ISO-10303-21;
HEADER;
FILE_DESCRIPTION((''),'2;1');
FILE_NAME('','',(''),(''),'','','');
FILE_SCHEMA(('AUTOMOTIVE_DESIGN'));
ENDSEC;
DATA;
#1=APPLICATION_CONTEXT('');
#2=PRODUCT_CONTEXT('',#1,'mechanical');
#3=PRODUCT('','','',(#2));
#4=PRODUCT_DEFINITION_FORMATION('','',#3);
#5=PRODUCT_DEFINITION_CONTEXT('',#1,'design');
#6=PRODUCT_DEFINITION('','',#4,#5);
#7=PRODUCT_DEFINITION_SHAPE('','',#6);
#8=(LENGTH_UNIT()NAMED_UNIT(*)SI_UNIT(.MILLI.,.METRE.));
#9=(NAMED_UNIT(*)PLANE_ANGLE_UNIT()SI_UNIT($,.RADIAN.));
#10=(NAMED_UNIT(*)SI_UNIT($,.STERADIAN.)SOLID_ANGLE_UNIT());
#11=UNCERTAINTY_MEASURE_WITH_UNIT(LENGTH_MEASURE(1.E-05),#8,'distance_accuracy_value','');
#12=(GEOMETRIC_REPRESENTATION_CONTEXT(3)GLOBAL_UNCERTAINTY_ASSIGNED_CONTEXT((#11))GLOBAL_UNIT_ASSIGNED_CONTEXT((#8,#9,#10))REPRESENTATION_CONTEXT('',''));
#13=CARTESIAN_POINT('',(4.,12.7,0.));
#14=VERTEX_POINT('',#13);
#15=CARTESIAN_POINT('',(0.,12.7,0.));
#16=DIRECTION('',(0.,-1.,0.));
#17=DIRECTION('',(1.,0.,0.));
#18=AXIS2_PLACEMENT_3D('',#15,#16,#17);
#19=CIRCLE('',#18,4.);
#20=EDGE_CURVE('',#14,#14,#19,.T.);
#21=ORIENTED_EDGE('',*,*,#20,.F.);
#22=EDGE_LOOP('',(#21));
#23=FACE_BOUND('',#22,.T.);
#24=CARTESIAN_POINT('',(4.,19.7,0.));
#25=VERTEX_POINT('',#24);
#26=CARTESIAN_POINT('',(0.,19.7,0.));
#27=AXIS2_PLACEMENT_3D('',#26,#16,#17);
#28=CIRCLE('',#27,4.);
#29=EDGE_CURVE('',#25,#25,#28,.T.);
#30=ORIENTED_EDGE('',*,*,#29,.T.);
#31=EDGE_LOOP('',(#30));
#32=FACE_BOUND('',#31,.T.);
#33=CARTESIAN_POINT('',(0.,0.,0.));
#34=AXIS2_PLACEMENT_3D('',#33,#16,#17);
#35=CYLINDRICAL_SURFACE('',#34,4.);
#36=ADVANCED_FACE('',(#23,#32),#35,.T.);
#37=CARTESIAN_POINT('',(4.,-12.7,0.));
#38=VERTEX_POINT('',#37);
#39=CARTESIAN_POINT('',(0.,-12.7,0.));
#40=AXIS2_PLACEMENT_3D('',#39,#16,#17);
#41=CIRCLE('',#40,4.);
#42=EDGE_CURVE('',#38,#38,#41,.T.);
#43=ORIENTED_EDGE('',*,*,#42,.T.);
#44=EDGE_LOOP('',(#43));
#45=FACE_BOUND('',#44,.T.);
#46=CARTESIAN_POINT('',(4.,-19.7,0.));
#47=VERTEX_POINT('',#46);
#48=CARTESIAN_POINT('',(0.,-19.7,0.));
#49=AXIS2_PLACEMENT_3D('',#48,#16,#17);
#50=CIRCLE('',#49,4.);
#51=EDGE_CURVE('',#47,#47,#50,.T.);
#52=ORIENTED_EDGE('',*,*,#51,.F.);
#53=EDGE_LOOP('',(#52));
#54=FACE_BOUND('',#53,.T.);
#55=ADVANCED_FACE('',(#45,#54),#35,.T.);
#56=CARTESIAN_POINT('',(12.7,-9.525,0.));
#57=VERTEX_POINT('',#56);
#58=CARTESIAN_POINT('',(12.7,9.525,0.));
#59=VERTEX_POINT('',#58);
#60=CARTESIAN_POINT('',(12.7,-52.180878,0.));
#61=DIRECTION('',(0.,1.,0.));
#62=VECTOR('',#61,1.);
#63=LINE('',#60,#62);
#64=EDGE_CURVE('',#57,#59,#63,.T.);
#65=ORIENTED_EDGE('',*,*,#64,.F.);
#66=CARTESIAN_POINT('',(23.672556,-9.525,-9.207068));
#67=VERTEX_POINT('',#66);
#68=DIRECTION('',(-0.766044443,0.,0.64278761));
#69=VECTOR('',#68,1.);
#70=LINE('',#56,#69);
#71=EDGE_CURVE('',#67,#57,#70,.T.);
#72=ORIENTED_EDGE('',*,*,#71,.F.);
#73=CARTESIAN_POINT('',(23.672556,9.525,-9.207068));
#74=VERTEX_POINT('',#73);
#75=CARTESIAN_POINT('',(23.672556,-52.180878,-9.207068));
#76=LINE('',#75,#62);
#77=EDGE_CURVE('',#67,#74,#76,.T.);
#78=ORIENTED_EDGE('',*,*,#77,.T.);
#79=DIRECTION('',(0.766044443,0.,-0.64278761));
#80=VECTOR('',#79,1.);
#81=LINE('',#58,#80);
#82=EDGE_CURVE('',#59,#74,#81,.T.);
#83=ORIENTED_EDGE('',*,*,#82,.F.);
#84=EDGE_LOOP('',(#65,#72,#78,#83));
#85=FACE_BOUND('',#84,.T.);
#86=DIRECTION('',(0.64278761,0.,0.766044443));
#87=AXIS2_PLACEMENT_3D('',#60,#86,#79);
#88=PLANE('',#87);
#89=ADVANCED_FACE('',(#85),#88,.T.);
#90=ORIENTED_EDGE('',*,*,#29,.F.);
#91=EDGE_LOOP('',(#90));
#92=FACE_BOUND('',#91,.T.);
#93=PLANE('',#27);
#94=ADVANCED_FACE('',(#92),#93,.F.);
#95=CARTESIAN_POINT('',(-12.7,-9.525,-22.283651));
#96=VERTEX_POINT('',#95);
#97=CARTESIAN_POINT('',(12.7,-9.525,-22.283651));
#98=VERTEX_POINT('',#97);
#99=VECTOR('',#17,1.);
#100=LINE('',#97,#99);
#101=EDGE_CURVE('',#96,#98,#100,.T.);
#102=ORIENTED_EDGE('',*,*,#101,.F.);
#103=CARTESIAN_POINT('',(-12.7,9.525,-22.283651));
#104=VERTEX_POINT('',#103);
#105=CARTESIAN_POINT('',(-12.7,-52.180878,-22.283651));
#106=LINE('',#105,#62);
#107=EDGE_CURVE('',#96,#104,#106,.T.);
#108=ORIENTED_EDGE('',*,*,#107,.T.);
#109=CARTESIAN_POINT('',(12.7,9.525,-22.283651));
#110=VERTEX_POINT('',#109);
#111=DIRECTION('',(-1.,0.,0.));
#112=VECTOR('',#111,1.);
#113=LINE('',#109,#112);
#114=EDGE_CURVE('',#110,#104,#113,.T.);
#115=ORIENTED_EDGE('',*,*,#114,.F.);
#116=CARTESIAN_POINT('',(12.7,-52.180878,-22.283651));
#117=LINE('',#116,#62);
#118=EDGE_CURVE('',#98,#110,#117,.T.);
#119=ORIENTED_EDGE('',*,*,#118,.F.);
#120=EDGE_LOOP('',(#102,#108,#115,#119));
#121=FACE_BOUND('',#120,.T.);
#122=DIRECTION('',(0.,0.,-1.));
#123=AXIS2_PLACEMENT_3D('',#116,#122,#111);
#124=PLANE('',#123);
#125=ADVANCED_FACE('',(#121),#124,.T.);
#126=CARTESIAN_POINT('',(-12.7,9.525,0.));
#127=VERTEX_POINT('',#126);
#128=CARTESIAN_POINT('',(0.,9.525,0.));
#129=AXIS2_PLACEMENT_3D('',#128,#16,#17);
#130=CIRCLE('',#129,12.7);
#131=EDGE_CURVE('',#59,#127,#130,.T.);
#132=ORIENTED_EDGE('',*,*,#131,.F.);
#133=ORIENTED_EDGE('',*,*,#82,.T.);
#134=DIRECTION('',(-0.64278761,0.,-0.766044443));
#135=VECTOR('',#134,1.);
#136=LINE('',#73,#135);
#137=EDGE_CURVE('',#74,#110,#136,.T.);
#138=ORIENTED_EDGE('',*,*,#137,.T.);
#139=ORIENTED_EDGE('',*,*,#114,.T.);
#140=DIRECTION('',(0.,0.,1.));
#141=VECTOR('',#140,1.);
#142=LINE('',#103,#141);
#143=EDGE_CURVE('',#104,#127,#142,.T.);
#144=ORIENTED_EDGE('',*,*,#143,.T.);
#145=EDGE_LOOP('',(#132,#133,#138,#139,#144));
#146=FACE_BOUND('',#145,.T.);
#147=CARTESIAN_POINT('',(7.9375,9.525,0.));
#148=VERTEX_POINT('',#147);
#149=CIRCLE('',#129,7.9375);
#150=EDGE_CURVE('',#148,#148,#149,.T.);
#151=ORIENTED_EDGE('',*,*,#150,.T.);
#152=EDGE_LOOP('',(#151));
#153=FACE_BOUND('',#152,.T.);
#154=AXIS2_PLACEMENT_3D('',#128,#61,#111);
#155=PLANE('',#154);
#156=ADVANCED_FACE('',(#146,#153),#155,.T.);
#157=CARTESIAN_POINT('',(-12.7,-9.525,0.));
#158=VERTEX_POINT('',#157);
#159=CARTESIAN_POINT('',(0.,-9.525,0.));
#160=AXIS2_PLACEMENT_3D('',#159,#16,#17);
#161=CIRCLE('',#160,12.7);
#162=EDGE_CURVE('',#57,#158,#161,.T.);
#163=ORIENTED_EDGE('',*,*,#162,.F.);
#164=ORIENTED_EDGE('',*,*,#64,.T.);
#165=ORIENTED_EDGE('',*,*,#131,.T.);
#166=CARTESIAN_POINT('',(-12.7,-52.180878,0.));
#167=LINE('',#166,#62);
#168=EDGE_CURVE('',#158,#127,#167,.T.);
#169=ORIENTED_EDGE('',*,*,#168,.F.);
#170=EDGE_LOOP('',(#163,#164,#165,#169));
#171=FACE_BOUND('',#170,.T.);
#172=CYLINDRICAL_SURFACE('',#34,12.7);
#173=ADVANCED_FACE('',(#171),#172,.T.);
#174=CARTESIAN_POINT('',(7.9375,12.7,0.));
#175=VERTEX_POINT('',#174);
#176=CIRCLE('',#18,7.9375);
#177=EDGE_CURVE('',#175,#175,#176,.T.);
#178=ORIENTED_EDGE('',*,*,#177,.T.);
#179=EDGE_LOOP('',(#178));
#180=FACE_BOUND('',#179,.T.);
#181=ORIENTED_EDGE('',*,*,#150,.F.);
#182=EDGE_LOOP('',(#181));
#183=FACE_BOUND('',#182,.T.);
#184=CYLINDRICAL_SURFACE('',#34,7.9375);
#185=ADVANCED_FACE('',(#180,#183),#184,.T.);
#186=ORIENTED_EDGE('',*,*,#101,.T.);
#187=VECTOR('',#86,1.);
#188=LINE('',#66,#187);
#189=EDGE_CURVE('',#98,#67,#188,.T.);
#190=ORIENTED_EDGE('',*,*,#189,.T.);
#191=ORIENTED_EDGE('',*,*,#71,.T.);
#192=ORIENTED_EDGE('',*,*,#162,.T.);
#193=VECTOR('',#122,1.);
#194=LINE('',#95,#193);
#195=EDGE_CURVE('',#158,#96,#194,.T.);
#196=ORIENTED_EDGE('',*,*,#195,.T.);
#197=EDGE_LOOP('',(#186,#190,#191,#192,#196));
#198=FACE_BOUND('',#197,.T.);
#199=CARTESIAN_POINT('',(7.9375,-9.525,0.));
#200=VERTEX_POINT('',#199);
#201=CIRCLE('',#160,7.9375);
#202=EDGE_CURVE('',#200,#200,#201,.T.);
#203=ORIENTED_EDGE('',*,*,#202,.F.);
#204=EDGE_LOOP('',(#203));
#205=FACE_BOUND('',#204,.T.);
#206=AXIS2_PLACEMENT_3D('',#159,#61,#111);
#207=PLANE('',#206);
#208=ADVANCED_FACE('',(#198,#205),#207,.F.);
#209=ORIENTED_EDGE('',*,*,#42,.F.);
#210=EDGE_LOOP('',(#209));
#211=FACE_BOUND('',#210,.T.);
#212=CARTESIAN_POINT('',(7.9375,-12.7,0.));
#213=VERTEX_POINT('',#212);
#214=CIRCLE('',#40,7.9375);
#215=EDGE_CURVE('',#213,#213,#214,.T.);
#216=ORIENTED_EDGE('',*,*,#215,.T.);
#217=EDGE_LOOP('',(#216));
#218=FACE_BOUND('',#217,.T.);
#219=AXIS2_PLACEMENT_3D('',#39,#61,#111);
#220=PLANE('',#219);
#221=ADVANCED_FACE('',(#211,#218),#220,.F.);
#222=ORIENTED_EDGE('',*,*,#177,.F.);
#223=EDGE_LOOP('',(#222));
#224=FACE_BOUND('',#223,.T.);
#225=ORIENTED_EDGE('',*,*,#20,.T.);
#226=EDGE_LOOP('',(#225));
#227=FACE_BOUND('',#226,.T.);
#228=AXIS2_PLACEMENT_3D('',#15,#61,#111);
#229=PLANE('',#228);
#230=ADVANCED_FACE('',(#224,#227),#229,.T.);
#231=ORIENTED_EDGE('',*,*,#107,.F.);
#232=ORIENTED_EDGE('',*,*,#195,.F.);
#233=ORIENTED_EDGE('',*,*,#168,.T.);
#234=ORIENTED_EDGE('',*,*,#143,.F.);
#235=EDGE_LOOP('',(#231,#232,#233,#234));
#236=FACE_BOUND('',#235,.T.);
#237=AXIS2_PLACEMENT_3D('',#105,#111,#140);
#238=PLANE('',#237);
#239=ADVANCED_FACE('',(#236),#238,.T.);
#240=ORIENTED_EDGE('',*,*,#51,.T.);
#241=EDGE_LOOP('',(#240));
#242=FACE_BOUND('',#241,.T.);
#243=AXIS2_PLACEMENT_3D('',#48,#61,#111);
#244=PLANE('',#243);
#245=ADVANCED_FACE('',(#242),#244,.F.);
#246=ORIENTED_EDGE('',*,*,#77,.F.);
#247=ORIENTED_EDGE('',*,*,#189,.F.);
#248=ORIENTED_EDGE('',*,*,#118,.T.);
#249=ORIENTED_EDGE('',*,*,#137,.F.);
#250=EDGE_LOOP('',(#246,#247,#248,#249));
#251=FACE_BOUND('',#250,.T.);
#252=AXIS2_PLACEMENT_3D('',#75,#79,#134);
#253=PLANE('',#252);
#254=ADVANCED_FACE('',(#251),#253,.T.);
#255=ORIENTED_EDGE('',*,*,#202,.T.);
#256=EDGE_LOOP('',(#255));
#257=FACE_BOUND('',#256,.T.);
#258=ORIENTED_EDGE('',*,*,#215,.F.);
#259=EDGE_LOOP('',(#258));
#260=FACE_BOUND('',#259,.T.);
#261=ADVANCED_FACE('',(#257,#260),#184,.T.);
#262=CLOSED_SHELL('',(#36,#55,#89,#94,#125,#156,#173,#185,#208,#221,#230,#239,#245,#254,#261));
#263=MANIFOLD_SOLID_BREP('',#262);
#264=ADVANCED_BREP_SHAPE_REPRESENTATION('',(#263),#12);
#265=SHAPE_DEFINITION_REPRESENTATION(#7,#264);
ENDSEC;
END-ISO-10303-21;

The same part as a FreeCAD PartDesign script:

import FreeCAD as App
import Part
import Sketcher
Q = App.Units.Quantity


def add_polygon(sketch, points):
    """Adds a closed chain of lines whose ends are joined by coincident constraints."""
    first, n = sketch.GeometryCount, len(points)
    for a, b in zip(points, points[1:] + points[:1]):
        sketch.addGeometry(Part.LineSegment(App.Vector(*a, 0), App.Vector(*b, 0)), False)
    for i in range(n):
        sketch.addConstraint(Sketcher.Constraint("Coincident", first + i, 2, first + (i + 1) % n, 1))

doc = App.newDocument("Part")
body = doc.addObject("PartDesign::Body", "Body")

sketch1 = body.newObject("Sketcher::SketchObject", "Sketch")
sketch1.AttachmentSupport = (doc.getObject("XY_Plane"), [""])
sketch1.MapMode = "FlatFace"
add_polygon(sketch1, [(-4, -19.7), (0, -19.7), (0, 19.7), (-4, 19.7), (-4, 12.7), (-7.9375, 12.7), (-7.9375, 9.525), (-12.7, 9.525), (-12.7, -9.525), (-7.9375, -9.525), (-7.9375, -12.7), (-4, -12.7)])
sketch1.addConstraint([
    Sketcher.Constraint("Horizontal", 0),
    Sketcher.Constraint("Vertical", 1),
    Sketcher.Constraint("Horizontal", 2),
    Sketcher.Constraint("Vertical", 3),
    Sketcher.Constraint("Horizontal", 4),
    Sketcher.Constraint("Vertical", 5),
    Sketcher.Constraint("Horizontal", 6),
    Sketcher.Constraint("Vertical", 7),
    Sketcher.Constraint("Horizontal", 8),
    Sketcher.Constraint("Vertical", 9),
    Sketcher.Constraint("Horizontal", 10),
    Sketcher.Constraint("Vertical", 11),
    Sketcher.Constraint("Symmetric", 0, 2, 1, 2, -1, 1),
    Sketcher.Constraint("Symmetric", 5, 2, 8, 2, -1),
    Sketcher.Constraint("Symmetric", 3, 2, 10, 2, -1),
    Sketcher.Constraint("DistanceY", 7, 2, 7, 1, Q("0.75 in")),
    Sketcher.Constraint("DistanceY", -1, 1, 3, 2, Q("0.5 in")),
    Sketcher.Constraint("DistanceX", 6, 2, -1, 1, Q("0.5 in")),
    Sketcher.Constraint("DistanceX", 6, 2, 6, 1, Q("0.1875 in")),
    Sketcher.Constraint("DistanceX", 0, 1, 0, 2, 4.0),
    Sketcher.Constraint("DistanceY", 1, 1, 1, 2, 39.4),
])
revolution = body.newObject("PartDesign::Revolution", "Revolution")
revolution.Profile = sketch1
revolution.ReferenceAxis = (sketch1, ["V_Axis"])
revolution.Angle = 360

sketch2 = body.newObject("Sketcher::SketchObject", "Sketch001")
sketch2.AttachmentSupport = (doc.getObject("XZ_Plane"), [""])
sketch2.MapMode = "FlatFace"
sketch2.AttachmentOffset = App.Placement(App.Vector(0, 0, -0.375 * 25.4), App.Rotation())
add_polygon(sketch2, [(12.7, 0), (23.672556, -9.207068), (12.7, -22.283651), (-12.7, -22.283651), (-12.7, 0)])
sketch2.addConstraint([
    Sketcher.Constraint("Horizontal", 2),
    Sketcher.Constraint("Vertical", 3),
    Sketcher.Constraint("Horizontal", 4),
    Sketcher.Constraint("Symmetric", 3, 2, 4, 2, -1, 1),
    Sketcher.Constraint("Perpendicular", 0, 1),
    Sketcher.Constraint("Vertical", 1, 2, 4, 2),
    Sketcher.Constraint("DistanceX", 2, 2, 2, 1, Q("1 in")),
    Sketcher.Constraint("Angle", 0, Q("-40 deg")),
    Sketcher.Constraint("DistanceY", 3, 1, 3, 2, 22.283651),
])
pad1 = body.newObject("PartDesign::Pad", "Pad")
pad1.Profile = sketch2
pad1.Length = Q("0.75 in")

doc.recompute()
